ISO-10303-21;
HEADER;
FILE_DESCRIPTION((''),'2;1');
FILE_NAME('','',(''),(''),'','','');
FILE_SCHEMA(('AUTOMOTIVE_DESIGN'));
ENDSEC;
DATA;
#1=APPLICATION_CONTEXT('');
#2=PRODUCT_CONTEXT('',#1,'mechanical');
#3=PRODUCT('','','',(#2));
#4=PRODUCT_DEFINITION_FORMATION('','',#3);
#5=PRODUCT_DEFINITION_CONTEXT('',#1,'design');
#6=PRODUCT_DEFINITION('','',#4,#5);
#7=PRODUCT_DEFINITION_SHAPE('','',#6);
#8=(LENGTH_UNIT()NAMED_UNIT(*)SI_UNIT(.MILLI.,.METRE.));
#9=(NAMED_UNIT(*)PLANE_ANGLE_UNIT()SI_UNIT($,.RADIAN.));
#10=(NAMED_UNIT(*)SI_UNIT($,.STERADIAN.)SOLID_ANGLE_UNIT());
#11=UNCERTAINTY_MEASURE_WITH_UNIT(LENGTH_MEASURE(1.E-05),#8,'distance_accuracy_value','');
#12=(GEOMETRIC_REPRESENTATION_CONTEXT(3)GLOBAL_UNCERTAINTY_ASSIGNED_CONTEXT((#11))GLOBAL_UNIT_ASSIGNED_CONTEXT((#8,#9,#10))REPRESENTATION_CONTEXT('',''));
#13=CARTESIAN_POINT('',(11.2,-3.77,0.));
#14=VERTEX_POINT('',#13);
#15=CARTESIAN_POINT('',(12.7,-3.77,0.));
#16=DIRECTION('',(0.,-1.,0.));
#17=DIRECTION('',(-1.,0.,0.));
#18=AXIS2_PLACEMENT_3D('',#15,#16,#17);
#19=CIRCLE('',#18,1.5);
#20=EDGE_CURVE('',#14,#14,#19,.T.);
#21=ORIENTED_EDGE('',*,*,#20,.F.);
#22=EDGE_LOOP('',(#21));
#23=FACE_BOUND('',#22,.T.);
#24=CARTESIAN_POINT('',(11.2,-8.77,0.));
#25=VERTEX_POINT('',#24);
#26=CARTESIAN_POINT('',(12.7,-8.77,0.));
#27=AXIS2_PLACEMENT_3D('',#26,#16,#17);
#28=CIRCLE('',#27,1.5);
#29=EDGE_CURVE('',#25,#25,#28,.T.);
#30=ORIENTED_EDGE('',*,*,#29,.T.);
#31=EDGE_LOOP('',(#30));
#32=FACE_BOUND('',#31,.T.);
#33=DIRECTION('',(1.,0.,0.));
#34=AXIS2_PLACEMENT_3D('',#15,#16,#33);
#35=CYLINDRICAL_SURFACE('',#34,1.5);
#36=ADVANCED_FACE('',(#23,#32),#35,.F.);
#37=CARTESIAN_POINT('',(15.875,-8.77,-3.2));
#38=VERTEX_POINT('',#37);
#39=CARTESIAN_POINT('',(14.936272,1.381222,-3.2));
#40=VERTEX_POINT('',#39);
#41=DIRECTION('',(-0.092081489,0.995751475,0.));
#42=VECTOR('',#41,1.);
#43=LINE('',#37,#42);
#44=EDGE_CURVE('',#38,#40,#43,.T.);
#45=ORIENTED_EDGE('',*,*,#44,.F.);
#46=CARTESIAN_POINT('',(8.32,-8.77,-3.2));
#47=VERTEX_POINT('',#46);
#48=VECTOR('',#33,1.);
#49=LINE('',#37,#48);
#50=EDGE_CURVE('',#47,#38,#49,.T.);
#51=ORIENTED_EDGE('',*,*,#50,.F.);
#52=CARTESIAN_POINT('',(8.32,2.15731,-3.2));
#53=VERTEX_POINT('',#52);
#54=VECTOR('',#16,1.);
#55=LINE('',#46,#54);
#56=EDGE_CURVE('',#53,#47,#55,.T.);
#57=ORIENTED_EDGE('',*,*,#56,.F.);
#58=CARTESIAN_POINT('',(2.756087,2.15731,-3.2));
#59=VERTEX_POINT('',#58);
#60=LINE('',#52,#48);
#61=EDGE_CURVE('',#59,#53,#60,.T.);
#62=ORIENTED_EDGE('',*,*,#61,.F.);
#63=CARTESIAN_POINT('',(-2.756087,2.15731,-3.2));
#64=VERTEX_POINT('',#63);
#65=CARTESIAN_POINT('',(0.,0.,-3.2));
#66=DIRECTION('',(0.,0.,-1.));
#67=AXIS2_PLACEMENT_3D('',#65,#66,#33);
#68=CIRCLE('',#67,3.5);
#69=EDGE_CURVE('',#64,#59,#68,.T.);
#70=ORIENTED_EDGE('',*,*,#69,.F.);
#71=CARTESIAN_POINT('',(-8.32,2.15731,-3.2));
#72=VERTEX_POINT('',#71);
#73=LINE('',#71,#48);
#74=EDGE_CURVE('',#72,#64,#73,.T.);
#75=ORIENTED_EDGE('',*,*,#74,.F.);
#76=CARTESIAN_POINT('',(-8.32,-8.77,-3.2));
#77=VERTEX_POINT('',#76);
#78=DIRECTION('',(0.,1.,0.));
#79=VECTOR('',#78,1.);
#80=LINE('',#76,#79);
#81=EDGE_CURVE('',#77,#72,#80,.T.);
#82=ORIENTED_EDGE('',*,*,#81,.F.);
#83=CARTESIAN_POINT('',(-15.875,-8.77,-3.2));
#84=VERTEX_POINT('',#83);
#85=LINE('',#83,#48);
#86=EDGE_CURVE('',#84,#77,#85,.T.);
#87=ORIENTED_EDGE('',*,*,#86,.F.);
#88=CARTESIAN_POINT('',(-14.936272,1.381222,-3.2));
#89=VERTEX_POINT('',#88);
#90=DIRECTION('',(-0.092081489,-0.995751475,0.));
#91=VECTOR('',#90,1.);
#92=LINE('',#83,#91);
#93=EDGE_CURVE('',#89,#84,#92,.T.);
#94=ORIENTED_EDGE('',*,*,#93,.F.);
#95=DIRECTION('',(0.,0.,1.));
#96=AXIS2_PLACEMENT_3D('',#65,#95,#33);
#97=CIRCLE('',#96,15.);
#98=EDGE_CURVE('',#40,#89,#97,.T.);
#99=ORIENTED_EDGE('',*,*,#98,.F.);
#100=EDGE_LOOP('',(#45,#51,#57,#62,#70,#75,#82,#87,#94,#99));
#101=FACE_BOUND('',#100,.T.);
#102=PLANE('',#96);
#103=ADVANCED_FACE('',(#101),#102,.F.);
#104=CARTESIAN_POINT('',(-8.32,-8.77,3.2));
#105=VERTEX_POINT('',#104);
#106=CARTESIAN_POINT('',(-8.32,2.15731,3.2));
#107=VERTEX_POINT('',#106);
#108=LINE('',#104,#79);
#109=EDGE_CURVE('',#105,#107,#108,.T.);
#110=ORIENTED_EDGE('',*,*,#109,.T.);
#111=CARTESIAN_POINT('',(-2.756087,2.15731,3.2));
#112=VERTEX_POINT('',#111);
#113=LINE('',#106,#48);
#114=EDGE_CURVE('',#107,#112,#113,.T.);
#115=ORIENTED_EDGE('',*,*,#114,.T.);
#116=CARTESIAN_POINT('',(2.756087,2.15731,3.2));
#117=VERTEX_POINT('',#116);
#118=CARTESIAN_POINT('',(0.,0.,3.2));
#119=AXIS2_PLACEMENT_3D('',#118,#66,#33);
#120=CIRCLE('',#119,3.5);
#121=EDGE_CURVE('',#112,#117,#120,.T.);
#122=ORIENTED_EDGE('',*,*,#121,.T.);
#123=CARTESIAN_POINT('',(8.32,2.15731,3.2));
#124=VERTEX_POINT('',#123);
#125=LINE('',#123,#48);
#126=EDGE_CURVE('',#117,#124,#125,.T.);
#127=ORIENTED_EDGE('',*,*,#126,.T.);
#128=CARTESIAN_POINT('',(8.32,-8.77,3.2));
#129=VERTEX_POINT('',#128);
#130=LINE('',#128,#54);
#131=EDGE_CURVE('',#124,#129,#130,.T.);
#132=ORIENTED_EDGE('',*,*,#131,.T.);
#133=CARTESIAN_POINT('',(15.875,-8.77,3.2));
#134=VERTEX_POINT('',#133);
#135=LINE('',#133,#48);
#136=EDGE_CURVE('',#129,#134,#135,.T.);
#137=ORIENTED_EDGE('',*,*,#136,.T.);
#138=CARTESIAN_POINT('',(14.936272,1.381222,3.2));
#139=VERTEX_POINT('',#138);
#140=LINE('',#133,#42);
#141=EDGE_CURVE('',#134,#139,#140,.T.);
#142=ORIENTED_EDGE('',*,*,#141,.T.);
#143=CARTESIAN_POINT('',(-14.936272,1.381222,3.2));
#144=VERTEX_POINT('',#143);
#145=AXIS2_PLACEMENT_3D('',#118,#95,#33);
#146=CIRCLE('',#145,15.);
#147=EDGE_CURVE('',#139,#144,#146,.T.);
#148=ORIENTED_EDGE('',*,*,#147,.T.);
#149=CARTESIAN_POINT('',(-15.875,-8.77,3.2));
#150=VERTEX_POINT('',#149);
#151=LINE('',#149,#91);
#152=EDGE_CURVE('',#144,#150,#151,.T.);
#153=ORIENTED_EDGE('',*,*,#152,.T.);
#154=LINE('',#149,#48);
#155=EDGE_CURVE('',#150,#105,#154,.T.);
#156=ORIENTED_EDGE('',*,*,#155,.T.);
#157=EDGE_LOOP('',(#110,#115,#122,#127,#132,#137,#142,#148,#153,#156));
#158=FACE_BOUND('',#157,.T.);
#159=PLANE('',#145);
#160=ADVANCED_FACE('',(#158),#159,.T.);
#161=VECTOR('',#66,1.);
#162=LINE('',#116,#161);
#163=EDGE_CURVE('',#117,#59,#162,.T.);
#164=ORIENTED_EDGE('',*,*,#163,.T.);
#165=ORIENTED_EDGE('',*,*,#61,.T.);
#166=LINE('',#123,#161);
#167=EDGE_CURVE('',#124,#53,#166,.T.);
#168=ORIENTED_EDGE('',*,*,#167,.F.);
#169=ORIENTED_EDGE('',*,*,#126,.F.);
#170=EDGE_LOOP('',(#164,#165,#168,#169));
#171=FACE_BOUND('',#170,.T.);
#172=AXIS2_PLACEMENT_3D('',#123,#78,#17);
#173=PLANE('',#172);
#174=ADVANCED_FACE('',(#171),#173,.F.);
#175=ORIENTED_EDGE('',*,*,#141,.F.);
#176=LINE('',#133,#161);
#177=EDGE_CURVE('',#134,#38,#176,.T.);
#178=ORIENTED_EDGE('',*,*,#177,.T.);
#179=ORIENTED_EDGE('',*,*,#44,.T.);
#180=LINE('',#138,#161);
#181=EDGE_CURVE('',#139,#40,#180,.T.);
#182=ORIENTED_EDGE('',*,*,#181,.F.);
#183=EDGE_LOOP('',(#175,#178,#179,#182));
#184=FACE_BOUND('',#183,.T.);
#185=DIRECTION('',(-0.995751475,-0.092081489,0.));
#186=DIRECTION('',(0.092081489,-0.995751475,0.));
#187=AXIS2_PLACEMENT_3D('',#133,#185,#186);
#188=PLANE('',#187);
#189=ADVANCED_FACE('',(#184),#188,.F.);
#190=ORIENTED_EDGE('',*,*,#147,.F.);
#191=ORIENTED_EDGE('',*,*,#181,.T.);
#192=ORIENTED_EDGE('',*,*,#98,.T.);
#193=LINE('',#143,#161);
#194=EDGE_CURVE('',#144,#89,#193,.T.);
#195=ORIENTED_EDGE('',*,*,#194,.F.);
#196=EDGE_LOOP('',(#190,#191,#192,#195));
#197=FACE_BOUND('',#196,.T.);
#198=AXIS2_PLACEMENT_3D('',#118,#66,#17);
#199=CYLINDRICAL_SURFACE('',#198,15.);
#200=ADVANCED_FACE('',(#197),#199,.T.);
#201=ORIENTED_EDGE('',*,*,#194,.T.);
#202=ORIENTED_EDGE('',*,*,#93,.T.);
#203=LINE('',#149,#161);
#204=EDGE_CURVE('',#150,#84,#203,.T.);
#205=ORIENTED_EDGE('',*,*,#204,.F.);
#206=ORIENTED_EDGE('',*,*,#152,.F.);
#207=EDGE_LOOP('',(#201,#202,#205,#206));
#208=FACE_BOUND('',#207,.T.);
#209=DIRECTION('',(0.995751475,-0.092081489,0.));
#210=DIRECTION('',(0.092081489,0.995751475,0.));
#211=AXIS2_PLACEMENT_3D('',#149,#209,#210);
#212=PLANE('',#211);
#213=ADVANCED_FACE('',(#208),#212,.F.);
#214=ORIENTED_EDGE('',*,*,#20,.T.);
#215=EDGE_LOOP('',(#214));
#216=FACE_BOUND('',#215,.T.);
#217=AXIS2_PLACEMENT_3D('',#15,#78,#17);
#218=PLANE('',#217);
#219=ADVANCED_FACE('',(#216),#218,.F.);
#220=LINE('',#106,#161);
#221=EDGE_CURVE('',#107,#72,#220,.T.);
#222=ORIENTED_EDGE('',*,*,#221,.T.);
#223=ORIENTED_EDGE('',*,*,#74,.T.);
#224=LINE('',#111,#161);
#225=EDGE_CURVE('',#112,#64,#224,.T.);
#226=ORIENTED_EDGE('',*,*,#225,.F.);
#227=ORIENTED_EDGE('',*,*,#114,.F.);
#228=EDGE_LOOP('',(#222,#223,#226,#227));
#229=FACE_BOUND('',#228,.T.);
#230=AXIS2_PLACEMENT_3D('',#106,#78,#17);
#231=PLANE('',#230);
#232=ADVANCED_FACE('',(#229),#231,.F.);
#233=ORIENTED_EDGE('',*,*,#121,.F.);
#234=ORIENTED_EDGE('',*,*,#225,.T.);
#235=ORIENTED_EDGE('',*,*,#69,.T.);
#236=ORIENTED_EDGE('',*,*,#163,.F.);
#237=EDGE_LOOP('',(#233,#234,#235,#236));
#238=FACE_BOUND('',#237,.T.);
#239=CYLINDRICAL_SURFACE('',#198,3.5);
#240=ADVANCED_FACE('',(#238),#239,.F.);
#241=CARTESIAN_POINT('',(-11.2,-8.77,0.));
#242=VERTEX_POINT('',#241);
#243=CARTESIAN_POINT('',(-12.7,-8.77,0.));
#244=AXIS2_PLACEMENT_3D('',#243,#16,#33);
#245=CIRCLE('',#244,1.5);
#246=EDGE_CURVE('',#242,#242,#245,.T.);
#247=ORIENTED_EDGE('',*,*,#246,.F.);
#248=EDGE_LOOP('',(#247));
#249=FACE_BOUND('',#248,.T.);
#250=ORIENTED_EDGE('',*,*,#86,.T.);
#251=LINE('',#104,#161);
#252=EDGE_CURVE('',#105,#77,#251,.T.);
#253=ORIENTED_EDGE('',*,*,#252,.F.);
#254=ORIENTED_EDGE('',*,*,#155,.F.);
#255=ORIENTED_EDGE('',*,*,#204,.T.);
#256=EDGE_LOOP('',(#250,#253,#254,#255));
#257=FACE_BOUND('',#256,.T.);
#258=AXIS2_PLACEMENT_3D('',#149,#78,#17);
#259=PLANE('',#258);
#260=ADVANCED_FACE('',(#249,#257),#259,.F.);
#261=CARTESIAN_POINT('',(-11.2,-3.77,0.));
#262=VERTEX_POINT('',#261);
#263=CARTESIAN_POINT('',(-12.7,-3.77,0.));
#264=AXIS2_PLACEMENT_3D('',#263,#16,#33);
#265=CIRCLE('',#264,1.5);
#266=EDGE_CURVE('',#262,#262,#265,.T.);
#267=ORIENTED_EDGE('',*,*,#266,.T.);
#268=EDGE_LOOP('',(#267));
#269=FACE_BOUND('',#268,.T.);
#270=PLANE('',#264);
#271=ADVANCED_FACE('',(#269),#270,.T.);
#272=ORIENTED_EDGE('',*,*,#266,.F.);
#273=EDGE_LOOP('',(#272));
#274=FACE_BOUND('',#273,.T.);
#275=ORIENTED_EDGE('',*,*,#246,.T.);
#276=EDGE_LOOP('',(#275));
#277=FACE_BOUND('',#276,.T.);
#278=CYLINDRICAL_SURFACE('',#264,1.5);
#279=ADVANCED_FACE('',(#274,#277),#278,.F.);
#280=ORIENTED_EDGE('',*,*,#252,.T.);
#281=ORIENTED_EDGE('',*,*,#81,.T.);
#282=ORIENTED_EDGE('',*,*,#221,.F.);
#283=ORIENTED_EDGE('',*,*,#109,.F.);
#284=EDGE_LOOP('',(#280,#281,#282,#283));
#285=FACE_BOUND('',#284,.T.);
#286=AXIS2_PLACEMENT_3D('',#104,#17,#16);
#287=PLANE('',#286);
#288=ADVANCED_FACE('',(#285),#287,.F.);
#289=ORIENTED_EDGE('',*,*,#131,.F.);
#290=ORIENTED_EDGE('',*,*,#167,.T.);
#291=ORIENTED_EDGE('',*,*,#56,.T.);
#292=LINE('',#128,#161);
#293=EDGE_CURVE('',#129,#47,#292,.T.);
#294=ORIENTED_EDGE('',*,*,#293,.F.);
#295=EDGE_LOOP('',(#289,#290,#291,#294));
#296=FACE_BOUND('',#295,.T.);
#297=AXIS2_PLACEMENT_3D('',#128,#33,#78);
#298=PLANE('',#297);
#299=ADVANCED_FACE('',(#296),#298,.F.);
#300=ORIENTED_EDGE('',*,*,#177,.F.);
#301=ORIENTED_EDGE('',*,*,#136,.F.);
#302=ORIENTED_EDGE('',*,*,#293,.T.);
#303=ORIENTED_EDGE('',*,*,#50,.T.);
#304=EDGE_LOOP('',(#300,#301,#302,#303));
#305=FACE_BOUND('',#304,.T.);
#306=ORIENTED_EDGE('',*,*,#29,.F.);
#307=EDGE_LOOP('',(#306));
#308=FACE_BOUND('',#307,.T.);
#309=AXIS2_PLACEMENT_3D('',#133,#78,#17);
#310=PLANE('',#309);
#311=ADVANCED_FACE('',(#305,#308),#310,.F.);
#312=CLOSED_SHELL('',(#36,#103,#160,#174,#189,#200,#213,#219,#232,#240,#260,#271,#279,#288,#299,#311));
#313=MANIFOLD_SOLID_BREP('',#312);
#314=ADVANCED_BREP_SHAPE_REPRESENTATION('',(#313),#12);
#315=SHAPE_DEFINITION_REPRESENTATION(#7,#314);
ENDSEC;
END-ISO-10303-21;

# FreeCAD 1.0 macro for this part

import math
import FreeCAD as App
import Part
import Sketcher
from FreeCAD import Vector
Q = App.Units.Quantity

doc = App.newDocument("Part")
params = doc.addObject("Spreadsheet::Sheet", "Params")
for row, (alias, value) in enumerate([
    ("sketch1_radius", "15 mm"),
    ("sketch1_radius2", "3.5 mm"),
    ("pad1_length", "6.4 mm"),
    ("sketch2_diameter", "3 mm"),
    ("pocket1_length", "5 mm"),
], start=1):
    params.set(f"A{row}", alias)
    params.set(f"B{row}", "=" + value)
    params.setAlias(f"B{row}", alias)

body = doc.addObject("PartDesign::Body", "Body")

# Sketch on XY plane
sketch1 = doc.addObject("Sketcher::SketchObject", "Sketch")
body.addObject(sketch1)
sketch1.AttachmentSupport = (doc.XY_Plane, [""])
sketch1.MapMode = "FlatFace"
sketch1.addGeometry(Part.LineSegment(Vector(8.3, -8.8, 0), Vector(15.9, -8.8, 0)), False)
sketch1.addGeometry(Part.LineSegment(Vector(15.9, -8.8, 0), Vector(14.9, 1.4, 0)), False)
sketch1.addGeometry(Part.ArcOfCircle(Part.Circle(Vector(0, 0, 0), Vector(0, 0, 1), 15), math.radians(5), math.radians(175)), False)
sketch1.addGeometry(Part.LineSegment(Vector(-14.9, 1.4, 0), Vector(-15.9, -8.8, 0)), False)
sketch1.addGeometry(Part.LineSegment(Vector(-15.9, -8.8, 0), Vector(-8.3, -8.8, 0)), False)
sketch1.addGeometry(Part.LineSegment(Vector(-8.3, -8.8, 0), Vector(-8.3, 2.2, 0)), False)
sketch1.addGeometry(Part.LineSegment(Vector(-8.3, 2.2, 0), Vector(-2.8, 2.2, 0)), False)
sketch1.addGeometry(Part.ArcOfCircle(Part.Circle(Vector(0, 0, 0), Vector(0, 0, 1), 3.5), math.radians(38), math.radians(142)), False)
sketch1.addGeometry(Part.LineSegment(Vector(2.8, 2.2, 0), Vector(8.3, 2.2, 0)), False)
sketch1.addGeometry(Part.LineSegment(Vector(8.3, 2.2, 0), Vector(8.3, -8.8, 0)), False)
sketch1.addConstraint(Sketcher.Constraint("Coincident", 0, 2, 1, 1))
sketch1.addConstraint(Sketcher.Constraint("Tangent", 1, 2, 2, 1))
sketch1.addConstraint(Sketcher.Constraint("Tangent", 2, 2, 3, 1))
sketch1.addConstraint(Sketcher.Constraint("Coincident", 3, 2, 4, 1))
sketch1.addConstraint(Sketcher.Constraint("Coincident", 4, 2, 5, 1))
sketch1.addConstraint(Sketcher.Constraint("Coincident", 5, 2, 6, 1))
sketch1.addConstraint(Sketcher.Constraint("Coincident", 6, 2, 7, 2))
sketch1.addConstraint(Sketcher.Constraint("Coincident", 7, 1, 8, 1))
sketch1.addConstraint(Sketcher.Constraint("Coincident", 8, 2, 9, 1))
sketch1.addConstraint(Sketcher.Constraint("Coincident", 9, 2, 0, 1))
sketch1.addConstraint(Sketcher.Constraint("Horizontal", 0))
sketch1.addConstraint(Sketcher.Constraint("Horizontal", 4))
sketch1.addConstraint(Sketcher.Constraint("Vertical", 5))
sketch1.addConstraint(Sketcher.Constraint("Horizontal", 6))
sketch1.addConstraint(Sketcher.Constraint("Horizontal", 8))
sketch1.addConstraint(Sketcher.Constraint("Vertical", 9))
sketch1.addConstraint(Sketcher.Constraint("Coincident", 2, 3, -1, 1))
sketch1.addConstraint(Sketcher.Constraint("Coincident", 7, 3, -1, 1))
sketch1.addConstraint(Sketcher.Constraint("Symmetric", 0, 2, 3, 2, -2))
sketch1.addConstraint(Sketcher.Constraint("Symmetric", 5, 2, 8, 2, -2))
sketch1.addConstraint(Sketcher.Constraint("Radius", 2, Q("15 mm")))
sketch1.addConstraint(Sketcher.Constraint("Radius", 7, Q("3.5 mm")))
sketch1.addConstraint(Sketcher.Constraint("DistanceX", 0, 1, 0, 2, Q("7.555 mm")))
sketch1.addConstraint(Sketcher.Constraint("DistanceY", 0, 2, -1, 1, Q("8.77 mm")))
sketch1.addConstraint(Sketcher.Constraint("DistanceX", 4, 2, -1, 1, Q("8.32 mm")))
sketch1.addConstraint(Sketcher.Constraint("DistanceY", 5, 1, 5, 2, Q("10.92731 mm")))
sketch1.setExpression("Constraints[20]", "Params.sketch1_radius")
sketch1.setExpression("Constraints[21]", "Params.sketch1_radius2")
pad1 = doc.addObject("PartDesign::Pad", "Pad")
body.addObject(pad1)
pad1.Profile = sketch1
pad1.setExpression("Length", "Params.pad1_length")
pad1.Midplane = True

# Sketch on XZ plane
sketch2 = doc.addObject("Sketcher::SketchObject", "Sketch001")
body.addObject(sketch2)
sketch2.AttachmentSupport = (doc.XZ_Plane, [""])
sketch2.MapMode = "FlatFace"
sketch2.AttachmentOffset = App.Placement(Vector(0, 0, 8.77), App.Rotation())
sketch2.addGeometry(Part.Circle(Vector(-12.7, 0, 0), Vector(0, 0, 1), 1.5), False)
sketch2.addGeometry(Part.Circle(Vector(12.7, 0, 0), Vector(0, 0, 1), 1.5), False)
sketch2.addConstraint(Sketcher.Constraint("Equal", 0, 1))
sketch2.addConstraint(Sketcher.Constraint("Symmetric", 0, 3, 1, 3, -1, 1))
sketch2.addConstraint(Sketcher.Constraint("PointOnObject", 0, 3, -1))
sketch2.addConstraint(Sketcher.Constraint("Diameter", 0, Q("3 mm")))
sketch2.addConstraint(Sketcher.Constraint("DistanceX", 0, 3, -1, 1, Q("12.7 mm")))
sketch2.setExpression("Constraints[3]", "Params.sketch2_diameter")
pocket1 = doc.addObject("PartDesign::Pocket", "Pocket")
body.addObject(pocket1)
pocket1.Profile = sketch2
pocket1.setExpression("Length", "Params.pocket1_length")

doc.recompute()
